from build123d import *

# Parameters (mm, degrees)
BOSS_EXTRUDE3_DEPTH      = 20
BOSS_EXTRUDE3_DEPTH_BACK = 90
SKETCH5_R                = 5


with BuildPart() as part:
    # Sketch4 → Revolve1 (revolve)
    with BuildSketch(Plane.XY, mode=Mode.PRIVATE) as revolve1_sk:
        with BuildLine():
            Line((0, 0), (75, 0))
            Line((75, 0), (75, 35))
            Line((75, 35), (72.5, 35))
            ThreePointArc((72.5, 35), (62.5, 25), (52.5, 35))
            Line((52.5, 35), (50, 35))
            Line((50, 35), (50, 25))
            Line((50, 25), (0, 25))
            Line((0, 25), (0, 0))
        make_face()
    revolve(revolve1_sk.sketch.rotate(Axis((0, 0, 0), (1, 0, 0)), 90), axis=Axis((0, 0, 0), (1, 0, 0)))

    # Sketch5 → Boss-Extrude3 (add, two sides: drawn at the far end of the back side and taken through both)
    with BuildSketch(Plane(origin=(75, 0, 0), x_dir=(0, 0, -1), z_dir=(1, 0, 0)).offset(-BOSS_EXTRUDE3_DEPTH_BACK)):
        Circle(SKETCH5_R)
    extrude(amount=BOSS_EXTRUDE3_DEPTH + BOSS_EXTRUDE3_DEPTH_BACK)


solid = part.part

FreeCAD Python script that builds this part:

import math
import FreeCAD as App
import Part
import Sketcher

V = App.Vector
Q = App.Units.Quantity

doc = App.newDocument("Part")
body = doc.addObject("PartDesign::Body", "Body")

# Sketch on XY plane
sketch1 = body.newObject("Sketcher::SketchObject", "Sketch")
sketch1.AttachmentSupport = (doc.getObject("XY_Plane"), [""])
sketch1.MapMode = "FlatFace"
sketch1.addGeometry(Part.LineSegment(V(0, 0, 0), V(75, 0, 0)), False)
sketch1.addGeometry(Part.LineSegment(V(75, 0, 0), V(75, 35, 0)), False)
sketch1.addGeometry(Part.LineSegment(V(75, 35, 0), V(72.5, 35, 0)), False)
sketch1.addGeometry(Part.ArcOfCircle(Part.Circle(V(62.5, 35, 0), V(0, 0, 1), 10), math.radians(180), math.radians(360)), False)
sketch1.addGeometry(Part.LineSegment(V(52.5, 35, 0), V(50, 35, 0)), False)
sketch1.addGeometry(Part.LineSegment(V(50, 35, 0), V(50, 25, 0)), False)
sketch1.addGeometry(Part.LineSegment(V(50, 25, 0), V(0, 25, 0)), False)
sketch1.addGeometry(Part.LineSegment(V(0, 25, 0), V(0, 0, 0)), False)
sketch1.addConstraint(Sketcher.Constraint("Coincident", 0, 2, 1, 1))
sketch1.addConstraint(Sketcher.Constraint("Coincident", 1, 2, 2, 1))
sketch1.addConstraint(Sketcher.Constraint("Coincident", 2, 2, 3, 2))
sketch1.addConstraint(Sketcher.Constraint("Coincident", 3, 1, 4, 1))
sketch1.addConstraint(Sketcher.Constraint("Coincident", 4, 2, 5, 1))
sketch1.addConstraint(Sketcher.Constraint("Coincident", 5, 2, 6, 1))
sketch1.addConstraint(Sketcher.Constraint("Coincident", 6, 2, 7, 1))
sketch1.addConstraint(Sketcher.Constraint("Coincident", 7, 2, 0, 1))
sketch1.addConstraint(Sketcher.Constraint("Horizontal", 0))
sketch1.addConstraint(Sketcher.Constraint("Vertical", 1))
sketch1.addConstraint(Sketcher.Constraint("Horizontal", 2))
sketch1.addConstraint(Sketcher.Constraint("Horizontal", 4))
sketch1.addConstraint(Sketcher.Constraint("Vertical", 5))
sketch1.addConstraint(Sketcher.Constraint("Horizontal", 6))
sketch1.addConstraint(Sketcher.Constraint("Vertical", 7))
sketch1.addConstraint(Sketcher.Constraint("Coincident", 7, 2, -1, 1))
sketch1.addConstraint(Sketcher.Constraint("Horizontal", 3, 3, 1, 2))
sketch1.addConstraint(Sketcher.Constraint("Horizontal", 2, 2, 3, 1))
sketch1.addConstraint(Sketcher.Constraint("Equal", 2, 4))
sketch1.addConstraint(Sketcher.Constraint("Radius", 3, Q("10 mm")))
sketch1.addConstraint(Sketcher.Constraint("DistanceX", 0, 1, 0, 2, Q("75 mm")))
sketch1.addConstraint(Sketcher.Constraint("DistanceX", 6, 2, 6, 1, Q("50 mm")))
sketch1.addConstraint(Sketcher.Constraint("DistanceY", 1, 1, 1, 2, Q("35 mm")))
sketch1.addConstraint(Sketcher.Constraint("DistanceY", 5, 2, 5, 1, Q("10 mm")))
revolution = body.newObject("PartDesign::Revolution", "Revolution")
revolution.Profile = sketch1
revolution.ReferenceAxis = (sketch1, ["H_Axis"])
revolution.Angle = 360

# Sketch on YZ plane
sketch2 = body.newObject("Sketcher::SketchObject", "Sketch001")
sketch2.AttachmentSupport = (doc.getObject("YZ_Plane"), [""])
sketch2.MapMode = "FlatFace"
sketch2.AttachmentOffset = App.Placement(V(0, 0, 75), App.Rotation())
sketch2.addGeometry(Part.Circle(V(0, 0, 0), V(0, 0, 1), 5), False)
sketch2.addConstraint(Sketcher.Constraint("Coincident", 0, 3, -1, 1))
sketch2.addConstraint(Sketcher.Constraint("Diameter", 0, Q("10 mm")))
pad1 = body.newObject("PartDesign::Pad", "Pad")
pad1.Profile = sketch2
pad1.Type = "TwoLengths"
pad1.Length = 20
pad1.Length2 = 90

doc.recompute()
